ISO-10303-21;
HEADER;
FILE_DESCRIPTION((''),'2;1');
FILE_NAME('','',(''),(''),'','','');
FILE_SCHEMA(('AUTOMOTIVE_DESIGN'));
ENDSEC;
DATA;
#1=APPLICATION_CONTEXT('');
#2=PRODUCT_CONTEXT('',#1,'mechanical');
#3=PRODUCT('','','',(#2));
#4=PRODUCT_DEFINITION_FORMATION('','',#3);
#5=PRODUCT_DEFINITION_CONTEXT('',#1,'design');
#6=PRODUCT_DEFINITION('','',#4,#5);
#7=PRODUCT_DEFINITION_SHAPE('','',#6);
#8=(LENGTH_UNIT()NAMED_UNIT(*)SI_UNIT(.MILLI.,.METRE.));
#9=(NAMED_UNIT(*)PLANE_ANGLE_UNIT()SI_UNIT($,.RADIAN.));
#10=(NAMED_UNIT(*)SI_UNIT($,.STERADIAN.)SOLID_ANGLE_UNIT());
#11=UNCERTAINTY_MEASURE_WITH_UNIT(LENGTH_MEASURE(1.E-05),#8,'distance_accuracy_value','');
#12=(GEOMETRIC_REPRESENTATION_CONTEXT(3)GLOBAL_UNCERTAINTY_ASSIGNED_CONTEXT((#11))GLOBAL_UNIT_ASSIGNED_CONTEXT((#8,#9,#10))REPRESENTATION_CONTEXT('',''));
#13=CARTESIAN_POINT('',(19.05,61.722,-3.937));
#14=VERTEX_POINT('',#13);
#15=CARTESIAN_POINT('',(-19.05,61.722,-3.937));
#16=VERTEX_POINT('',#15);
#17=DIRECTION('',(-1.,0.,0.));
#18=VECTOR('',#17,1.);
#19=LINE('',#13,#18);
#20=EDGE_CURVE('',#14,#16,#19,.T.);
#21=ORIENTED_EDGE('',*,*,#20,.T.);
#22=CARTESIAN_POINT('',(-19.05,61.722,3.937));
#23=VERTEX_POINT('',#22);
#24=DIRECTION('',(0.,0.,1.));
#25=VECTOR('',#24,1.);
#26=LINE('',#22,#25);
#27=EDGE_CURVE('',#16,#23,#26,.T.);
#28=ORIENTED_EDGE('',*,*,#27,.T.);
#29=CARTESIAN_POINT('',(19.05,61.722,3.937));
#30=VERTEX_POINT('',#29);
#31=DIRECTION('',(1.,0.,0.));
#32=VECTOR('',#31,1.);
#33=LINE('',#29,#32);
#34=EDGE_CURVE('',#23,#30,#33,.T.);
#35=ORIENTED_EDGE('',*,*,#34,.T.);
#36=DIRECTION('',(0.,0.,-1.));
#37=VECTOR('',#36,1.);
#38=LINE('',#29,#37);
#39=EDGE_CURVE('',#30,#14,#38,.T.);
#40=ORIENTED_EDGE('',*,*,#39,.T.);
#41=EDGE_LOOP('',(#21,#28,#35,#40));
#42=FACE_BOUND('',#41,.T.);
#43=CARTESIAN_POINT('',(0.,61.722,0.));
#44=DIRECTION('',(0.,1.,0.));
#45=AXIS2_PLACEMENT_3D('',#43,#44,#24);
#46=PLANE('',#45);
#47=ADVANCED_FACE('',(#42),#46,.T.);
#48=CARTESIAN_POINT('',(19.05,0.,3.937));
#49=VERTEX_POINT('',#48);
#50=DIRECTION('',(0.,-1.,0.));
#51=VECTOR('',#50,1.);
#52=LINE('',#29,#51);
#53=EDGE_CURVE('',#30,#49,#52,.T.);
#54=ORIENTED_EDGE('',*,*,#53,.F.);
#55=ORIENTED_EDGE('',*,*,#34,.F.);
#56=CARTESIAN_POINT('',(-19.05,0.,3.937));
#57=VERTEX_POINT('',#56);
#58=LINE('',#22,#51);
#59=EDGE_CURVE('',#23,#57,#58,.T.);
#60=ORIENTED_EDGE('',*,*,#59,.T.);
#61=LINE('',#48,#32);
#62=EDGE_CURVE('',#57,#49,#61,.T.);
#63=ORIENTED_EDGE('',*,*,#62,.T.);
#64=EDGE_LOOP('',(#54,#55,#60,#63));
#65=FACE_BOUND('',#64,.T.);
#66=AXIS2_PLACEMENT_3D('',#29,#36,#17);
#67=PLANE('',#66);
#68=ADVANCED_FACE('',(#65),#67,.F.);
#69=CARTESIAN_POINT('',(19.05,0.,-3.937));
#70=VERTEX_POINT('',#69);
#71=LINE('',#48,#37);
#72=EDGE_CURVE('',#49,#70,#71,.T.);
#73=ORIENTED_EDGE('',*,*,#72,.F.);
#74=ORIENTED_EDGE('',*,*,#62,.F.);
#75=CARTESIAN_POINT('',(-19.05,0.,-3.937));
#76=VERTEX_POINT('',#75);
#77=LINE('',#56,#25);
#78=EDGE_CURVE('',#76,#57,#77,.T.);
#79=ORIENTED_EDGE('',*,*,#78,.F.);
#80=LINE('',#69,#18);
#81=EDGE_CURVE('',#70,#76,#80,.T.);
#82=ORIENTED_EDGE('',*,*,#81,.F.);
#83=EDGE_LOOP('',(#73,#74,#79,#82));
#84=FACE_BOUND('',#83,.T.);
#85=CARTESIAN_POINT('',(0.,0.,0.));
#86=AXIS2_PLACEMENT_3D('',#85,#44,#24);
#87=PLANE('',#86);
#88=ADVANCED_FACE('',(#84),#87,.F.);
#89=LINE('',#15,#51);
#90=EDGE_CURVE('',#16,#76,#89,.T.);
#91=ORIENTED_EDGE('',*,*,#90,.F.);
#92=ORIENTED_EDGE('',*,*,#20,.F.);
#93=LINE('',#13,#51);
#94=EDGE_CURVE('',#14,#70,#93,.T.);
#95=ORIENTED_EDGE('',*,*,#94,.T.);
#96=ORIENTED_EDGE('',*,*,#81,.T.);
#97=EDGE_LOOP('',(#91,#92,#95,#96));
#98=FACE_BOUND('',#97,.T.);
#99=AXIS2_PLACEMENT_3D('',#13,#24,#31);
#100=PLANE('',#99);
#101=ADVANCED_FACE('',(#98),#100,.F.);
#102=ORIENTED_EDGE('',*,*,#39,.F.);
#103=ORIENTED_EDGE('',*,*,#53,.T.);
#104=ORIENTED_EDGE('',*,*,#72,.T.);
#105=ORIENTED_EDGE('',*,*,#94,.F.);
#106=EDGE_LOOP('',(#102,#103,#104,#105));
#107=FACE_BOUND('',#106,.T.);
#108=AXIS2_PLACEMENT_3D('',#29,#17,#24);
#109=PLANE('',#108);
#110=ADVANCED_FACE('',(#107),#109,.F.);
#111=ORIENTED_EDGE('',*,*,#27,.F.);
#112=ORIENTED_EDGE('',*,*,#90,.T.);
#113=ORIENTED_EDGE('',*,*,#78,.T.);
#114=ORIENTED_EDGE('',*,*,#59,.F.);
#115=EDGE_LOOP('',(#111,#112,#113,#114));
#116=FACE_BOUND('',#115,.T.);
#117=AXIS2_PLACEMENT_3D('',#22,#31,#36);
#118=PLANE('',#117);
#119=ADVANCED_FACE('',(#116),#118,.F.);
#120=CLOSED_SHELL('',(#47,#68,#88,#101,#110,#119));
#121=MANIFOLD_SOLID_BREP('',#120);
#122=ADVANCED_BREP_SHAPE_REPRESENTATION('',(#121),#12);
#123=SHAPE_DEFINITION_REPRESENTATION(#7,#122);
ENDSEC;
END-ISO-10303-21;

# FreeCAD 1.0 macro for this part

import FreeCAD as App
import Part
import Sketcher
Q = App.Units.Quantity


def add_polygon(sketch, points):
    """Adds a closed chain of lines whose ends are joined by coincident constraints."""
    first, n = sketch.GeometryCount, len(points)
    for a, b in zip(points, points[1:] + points[:1]):
        sketch.addGeometry(Part.LineSegment(App.Vector(*a, 0), App.Vector(*b, 0)), False)
    for i in range(n):
        sketch.addConstraint(Sketcher.Constraint("Coincident", first + i, 2, first + (i + 1) % n, 1))

doc = App.newDocument("Part")
body = doc.addObject("PartDesign::Body", "Body")

sketch1 = body.newObject("Sketcher::SketchObject", "Sketch")
sketch1.AttachmentSupport = (doc.getObject("XZ_Plane"), [""])
sketch1.MapMode = "FlatFace"
add_polygon(sketch1, [(-19.05, -3.937), (-19.05, 3.937), (19.05, 3.937), (19.05, -3.937)])
sketch1.addConstraint(Sketcher.Constraint("Vertical", 0))
sketch1.addConstraint(Sketcher.Constraint("Horizontal", 1))
sketch1.addConstraint(Sketcher.Constraint("Vertical", 2))
sketch1.addConstraint(Sketcher.Constraint("Horizontal", 3))
sketch1.addConstraint(Sketcher.Constraint("Symmetric", 0, 2, 2, 2, -1, 1))
sketch1.addConstraint(Sketcher.Constraint("DistanceX", 1, 1, 1, 2, Q("1.5 in")))
sketch1.addConstraint(Sketcher.Constraint("DistanceY", 0, 1, 0, 2, Q("0.31 in")))
pad1 = body.newObject("PartDesign::Pad", "Pad")
pad1.Profile = sketch1
pad1.Length = Q("2.43 in")
pad1.Reversed = True

doc.recompute()
